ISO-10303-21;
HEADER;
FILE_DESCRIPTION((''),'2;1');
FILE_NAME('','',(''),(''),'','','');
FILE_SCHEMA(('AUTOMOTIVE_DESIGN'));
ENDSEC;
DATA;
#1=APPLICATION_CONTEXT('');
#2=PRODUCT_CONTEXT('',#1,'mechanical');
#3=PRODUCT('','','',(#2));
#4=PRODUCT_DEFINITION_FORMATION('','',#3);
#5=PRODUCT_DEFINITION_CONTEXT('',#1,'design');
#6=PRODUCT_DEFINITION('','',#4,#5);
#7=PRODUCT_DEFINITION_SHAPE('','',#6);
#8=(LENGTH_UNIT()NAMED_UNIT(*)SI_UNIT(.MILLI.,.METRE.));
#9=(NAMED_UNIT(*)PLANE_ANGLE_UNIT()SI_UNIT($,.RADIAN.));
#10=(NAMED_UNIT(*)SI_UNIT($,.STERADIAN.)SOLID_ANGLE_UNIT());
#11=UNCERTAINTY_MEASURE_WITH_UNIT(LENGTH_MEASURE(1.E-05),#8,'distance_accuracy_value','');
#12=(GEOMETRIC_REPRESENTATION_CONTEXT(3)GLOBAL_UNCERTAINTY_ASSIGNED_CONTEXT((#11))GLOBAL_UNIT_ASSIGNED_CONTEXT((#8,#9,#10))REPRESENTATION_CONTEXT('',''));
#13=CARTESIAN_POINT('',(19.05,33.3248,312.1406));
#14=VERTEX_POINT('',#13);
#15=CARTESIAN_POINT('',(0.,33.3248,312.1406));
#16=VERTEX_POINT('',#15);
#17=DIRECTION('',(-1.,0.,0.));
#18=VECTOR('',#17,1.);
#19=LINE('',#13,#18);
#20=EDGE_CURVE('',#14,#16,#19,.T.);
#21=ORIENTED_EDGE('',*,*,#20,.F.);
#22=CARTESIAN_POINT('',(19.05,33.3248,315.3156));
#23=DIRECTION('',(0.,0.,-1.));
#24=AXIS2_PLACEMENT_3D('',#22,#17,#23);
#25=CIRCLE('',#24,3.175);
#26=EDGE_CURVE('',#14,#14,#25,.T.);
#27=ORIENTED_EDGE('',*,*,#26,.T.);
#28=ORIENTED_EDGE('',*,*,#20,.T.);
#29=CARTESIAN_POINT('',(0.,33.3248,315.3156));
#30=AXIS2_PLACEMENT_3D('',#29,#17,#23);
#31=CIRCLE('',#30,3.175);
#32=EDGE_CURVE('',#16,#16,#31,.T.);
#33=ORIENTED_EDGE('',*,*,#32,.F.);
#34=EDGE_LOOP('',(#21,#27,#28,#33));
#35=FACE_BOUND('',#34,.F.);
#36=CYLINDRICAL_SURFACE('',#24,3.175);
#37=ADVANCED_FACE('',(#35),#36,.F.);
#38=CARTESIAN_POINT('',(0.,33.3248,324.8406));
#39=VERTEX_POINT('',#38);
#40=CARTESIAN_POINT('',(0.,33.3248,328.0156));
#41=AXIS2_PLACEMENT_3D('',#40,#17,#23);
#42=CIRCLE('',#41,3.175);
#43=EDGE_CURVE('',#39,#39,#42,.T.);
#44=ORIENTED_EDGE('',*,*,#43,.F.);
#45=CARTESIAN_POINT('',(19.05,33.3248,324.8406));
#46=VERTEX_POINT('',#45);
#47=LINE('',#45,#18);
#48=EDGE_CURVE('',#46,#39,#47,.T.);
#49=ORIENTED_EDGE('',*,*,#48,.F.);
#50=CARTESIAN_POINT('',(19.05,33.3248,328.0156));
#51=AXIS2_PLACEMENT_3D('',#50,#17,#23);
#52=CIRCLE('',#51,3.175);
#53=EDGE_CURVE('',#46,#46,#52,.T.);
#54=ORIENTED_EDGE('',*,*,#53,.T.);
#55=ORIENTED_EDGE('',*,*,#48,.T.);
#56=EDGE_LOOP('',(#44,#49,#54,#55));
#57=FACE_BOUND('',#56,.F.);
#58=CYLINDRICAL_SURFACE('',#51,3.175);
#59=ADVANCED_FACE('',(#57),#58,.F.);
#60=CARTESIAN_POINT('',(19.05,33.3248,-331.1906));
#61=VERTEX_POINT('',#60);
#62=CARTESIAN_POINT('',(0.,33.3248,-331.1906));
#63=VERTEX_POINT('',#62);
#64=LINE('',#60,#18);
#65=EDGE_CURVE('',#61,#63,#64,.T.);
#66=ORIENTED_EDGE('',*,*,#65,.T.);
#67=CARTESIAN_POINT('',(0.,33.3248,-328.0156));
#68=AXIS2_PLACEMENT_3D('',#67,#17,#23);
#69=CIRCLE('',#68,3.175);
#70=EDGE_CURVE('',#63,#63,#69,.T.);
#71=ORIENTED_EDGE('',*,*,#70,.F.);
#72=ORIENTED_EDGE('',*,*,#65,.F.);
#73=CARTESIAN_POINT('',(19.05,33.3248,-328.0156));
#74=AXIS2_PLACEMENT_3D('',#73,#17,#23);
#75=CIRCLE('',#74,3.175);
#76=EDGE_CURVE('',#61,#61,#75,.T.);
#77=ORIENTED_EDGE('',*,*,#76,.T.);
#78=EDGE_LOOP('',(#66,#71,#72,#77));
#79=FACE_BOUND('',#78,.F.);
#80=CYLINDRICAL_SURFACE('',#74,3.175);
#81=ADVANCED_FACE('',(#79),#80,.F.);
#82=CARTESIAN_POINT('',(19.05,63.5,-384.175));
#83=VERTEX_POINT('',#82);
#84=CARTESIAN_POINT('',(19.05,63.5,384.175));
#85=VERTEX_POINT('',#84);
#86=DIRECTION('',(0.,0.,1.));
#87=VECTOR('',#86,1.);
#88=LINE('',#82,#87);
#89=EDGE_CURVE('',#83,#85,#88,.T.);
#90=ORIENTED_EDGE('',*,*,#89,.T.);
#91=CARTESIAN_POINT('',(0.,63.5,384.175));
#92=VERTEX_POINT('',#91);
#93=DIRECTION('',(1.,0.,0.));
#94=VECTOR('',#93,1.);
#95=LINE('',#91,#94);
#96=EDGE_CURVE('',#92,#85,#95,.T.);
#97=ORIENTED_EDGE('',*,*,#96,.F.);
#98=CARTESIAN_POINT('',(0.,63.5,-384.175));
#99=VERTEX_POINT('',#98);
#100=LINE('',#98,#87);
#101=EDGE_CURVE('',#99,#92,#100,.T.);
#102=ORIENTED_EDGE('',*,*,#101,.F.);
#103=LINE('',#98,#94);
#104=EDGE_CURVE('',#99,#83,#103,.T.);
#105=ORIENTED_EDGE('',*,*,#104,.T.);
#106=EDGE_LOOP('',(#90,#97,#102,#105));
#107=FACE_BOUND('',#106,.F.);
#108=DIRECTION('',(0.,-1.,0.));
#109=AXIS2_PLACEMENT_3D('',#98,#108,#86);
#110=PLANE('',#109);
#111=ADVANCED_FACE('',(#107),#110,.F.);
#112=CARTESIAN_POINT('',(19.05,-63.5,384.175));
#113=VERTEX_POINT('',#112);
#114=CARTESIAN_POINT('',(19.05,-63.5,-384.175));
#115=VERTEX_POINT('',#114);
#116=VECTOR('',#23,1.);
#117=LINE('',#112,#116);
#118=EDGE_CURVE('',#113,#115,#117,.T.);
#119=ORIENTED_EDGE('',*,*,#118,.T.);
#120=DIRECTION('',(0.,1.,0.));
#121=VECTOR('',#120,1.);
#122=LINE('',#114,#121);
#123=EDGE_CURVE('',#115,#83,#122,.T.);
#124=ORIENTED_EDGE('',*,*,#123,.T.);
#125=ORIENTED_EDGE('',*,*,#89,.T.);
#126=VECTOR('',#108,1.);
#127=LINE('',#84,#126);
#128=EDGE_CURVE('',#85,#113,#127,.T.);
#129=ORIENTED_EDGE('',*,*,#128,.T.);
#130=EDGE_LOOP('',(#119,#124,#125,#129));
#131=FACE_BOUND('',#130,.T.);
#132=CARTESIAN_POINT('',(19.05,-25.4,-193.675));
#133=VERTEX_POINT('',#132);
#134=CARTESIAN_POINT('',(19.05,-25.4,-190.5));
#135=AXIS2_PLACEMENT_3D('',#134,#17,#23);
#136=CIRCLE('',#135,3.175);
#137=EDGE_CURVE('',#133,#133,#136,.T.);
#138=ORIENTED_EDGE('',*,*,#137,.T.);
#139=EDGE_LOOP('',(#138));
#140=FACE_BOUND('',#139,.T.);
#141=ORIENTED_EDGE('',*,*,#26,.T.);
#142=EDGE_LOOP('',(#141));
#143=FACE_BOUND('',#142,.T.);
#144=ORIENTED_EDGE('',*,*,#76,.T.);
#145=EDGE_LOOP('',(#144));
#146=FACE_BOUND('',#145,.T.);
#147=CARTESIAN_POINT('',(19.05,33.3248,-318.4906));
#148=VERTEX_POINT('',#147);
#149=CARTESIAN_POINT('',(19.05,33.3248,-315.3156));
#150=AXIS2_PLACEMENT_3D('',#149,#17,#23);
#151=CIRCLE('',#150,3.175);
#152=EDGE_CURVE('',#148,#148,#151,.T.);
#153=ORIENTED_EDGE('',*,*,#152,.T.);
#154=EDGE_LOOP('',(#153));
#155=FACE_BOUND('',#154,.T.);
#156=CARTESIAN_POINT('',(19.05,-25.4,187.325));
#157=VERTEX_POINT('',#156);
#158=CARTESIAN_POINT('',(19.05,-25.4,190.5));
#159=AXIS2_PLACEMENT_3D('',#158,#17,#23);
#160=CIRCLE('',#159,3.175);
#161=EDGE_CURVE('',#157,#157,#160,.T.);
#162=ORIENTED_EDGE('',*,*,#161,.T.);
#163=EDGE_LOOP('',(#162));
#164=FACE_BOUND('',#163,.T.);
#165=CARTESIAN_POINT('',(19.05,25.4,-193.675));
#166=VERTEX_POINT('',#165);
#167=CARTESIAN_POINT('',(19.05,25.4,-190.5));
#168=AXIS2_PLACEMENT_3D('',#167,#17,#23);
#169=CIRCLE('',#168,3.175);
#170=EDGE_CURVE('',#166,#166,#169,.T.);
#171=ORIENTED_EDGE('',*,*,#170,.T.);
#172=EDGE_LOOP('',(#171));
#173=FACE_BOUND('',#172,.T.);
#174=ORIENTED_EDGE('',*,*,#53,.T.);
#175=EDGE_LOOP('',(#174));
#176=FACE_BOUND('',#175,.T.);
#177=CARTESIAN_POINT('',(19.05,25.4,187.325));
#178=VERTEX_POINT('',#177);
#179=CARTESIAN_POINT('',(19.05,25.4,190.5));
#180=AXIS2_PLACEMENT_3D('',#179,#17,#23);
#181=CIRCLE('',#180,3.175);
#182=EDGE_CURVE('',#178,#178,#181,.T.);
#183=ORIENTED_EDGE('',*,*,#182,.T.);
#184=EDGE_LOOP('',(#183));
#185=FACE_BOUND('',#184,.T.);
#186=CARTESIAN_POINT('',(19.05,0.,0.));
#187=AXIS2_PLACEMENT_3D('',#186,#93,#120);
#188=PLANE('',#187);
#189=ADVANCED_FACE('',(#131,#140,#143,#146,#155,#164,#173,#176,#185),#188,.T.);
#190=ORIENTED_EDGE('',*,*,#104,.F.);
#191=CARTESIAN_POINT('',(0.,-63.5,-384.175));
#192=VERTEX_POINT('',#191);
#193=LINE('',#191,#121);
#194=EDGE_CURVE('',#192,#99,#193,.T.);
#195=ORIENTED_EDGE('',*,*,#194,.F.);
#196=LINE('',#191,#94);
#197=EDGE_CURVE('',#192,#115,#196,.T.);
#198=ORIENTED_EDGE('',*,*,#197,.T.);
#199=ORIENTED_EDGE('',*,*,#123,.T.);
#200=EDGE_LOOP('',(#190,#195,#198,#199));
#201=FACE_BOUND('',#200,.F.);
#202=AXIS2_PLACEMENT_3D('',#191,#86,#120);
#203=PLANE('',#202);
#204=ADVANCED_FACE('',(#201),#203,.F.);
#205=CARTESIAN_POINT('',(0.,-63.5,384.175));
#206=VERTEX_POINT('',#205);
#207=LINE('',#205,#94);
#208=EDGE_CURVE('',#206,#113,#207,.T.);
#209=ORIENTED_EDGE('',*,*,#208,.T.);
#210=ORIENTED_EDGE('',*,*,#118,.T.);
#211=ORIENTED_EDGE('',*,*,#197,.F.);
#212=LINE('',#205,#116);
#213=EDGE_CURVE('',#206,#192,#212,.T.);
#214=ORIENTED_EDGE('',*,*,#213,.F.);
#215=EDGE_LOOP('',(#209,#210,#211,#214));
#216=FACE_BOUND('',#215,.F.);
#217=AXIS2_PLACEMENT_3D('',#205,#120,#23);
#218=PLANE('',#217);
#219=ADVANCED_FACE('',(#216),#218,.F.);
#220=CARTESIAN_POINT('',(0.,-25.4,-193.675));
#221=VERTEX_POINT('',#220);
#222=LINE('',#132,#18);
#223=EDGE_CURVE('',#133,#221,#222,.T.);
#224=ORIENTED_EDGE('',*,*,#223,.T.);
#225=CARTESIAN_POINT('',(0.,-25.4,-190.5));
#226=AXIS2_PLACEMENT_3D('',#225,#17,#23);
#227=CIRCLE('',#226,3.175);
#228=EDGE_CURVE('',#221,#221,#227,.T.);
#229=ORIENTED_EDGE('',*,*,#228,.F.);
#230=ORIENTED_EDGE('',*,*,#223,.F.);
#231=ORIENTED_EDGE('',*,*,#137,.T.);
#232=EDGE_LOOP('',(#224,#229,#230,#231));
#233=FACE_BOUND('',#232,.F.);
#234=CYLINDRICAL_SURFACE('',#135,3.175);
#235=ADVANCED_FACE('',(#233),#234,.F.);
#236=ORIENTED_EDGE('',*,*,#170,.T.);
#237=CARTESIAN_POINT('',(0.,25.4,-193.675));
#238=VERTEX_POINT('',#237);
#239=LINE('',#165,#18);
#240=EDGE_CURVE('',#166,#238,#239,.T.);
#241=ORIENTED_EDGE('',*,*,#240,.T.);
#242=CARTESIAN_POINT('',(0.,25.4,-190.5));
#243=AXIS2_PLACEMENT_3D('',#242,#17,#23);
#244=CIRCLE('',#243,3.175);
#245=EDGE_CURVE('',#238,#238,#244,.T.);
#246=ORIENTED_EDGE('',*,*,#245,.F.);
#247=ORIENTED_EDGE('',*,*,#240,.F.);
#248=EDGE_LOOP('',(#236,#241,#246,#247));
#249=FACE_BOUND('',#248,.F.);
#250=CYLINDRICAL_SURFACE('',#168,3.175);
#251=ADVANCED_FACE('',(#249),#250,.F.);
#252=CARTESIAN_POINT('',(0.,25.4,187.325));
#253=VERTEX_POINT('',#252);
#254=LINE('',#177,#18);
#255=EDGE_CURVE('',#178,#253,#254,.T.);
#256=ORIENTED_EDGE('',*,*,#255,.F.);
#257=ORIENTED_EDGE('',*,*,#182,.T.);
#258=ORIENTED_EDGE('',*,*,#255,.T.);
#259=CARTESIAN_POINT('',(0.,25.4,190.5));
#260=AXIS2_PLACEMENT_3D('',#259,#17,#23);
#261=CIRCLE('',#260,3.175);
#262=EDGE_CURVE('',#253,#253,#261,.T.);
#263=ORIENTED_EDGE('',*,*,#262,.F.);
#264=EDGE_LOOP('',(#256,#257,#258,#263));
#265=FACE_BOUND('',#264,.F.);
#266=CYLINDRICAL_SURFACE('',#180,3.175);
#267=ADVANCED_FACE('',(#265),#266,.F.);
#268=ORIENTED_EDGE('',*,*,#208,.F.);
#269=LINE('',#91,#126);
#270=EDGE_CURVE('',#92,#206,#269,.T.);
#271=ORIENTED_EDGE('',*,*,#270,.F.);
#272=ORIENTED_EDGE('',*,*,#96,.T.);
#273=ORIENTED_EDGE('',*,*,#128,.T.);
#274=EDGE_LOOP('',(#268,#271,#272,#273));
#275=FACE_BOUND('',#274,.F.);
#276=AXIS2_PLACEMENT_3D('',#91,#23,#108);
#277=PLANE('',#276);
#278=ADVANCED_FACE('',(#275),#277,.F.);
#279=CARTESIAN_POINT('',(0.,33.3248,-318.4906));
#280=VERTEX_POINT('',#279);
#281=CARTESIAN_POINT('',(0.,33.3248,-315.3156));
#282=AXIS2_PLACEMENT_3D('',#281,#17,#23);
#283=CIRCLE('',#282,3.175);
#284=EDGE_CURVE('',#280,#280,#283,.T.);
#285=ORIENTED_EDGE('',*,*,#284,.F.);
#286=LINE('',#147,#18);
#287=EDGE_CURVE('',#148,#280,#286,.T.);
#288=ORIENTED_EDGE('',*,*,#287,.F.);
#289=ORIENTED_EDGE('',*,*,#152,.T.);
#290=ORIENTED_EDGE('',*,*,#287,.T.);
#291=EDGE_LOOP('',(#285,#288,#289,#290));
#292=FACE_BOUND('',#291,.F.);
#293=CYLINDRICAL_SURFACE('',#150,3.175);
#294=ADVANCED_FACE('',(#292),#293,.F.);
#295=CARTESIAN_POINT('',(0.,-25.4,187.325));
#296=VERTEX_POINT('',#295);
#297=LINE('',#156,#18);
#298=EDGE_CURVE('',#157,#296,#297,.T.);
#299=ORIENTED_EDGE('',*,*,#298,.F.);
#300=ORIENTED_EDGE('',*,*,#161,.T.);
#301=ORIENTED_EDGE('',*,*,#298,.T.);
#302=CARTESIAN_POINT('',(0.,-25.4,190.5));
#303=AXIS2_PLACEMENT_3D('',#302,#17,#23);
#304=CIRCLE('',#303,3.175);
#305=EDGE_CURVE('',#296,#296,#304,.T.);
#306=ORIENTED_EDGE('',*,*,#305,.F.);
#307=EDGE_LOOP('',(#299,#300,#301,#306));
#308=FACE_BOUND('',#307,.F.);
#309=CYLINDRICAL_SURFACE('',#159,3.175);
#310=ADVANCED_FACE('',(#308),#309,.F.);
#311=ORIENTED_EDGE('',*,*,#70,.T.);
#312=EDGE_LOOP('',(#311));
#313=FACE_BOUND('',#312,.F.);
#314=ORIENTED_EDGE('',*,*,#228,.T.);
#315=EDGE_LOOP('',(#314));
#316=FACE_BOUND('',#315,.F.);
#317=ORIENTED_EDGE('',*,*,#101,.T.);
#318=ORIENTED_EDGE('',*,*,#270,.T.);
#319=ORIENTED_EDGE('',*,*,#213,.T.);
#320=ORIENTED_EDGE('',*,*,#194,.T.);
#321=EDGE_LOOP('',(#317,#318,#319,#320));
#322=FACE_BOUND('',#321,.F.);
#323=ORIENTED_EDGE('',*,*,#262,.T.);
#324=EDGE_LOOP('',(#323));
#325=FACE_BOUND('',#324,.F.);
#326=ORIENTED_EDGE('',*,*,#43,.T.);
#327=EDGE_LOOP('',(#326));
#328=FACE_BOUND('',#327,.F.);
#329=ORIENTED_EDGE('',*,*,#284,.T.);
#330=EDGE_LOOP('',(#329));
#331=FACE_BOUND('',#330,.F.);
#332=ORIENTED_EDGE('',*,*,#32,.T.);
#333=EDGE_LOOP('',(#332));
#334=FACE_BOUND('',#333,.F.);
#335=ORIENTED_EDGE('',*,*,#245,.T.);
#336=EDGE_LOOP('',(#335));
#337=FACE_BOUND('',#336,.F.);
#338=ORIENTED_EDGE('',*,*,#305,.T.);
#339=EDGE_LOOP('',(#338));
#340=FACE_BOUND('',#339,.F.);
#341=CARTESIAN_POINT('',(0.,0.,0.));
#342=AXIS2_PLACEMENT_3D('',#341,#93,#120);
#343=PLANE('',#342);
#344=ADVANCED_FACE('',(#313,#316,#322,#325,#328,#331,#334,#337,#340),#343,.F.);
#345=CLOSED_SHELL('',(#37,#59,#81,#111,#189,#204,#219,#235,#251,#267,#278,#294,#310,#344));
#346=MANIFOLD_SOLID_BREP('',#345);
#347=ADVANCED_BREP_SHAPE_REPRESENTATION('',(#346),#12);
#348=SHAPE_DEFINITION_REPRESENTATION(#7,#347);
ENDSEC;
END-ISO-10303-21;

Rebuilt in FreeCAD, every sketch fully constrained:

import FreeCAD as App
import Part
import Sketcher
Q = App.Units.Quantity


def add_polygon(sketch, points):
    """Adds a closed chain of lines whose ends are joined by coincident constraints."""
    first, n = sketch.GeometryCount, len(points)
    for a, b in zip(points, points[1:] + points[:1]):
        sketch.addGeometry(Part.LineSegment(App.Vector(*a, 0), App.Vector(*b, 0)), False)
    for i in range(n):
        sketch.addConstraint(Sketcher.Constraint("Coincident", first + i, 2, first + (i + 1) % n, 1))

doc = App.newDocument("Part")
params = doc.addObject("Spreadsheet::Sheet", "Params")
for row, (alias, value) in enumerate([
    ("sketch1_width", "5 in"),
    ("sketch1_height", "30.25 in"),
    ("pad1_length", "0.75 in"),
    ("sketch2_diameter", "0.25 in"),
    ("hole_diameter", "0.25 in"),
], start=1):
    params.set(f"A{row}", alias)
    params.set(f"B{row}", "=" + value)
    params.setAlias(f"B{row}", alias)

body = doc.addObject("PartDesign::Body", "Body")

# Sketch on YZ plane
sketch1 = body.newObject("Sketcher::SketchObject", "Sketch")
sketch1.AttachmentSupport = (doc.getObject("YZ_Plane"), [""])
sketch1.MapMode = "FlatFace"
add_polygon(sketch1, [(-64, 384), (-64, -384), (64, -384), (64, 384)])  # lines 0-3
sketch1.addConstraint([
    Sketcher.Constraint("Vertical", 0),
    Sketcher.Constraint("Horizontal", 1),
    Sketcher.Constraint("Vertical", 2),
    Sketcher.Constraint("Horizontal", 3),
    Sketcher.Constraint("Symmetric", 0, 2, 2, 2, -1, 1),
    Sketcher.Constraint("DistanceX", 1, 1, 1, 2, Q("5 in")),
    Sketcher.Constraint("DistanceY", 0, 2, 0, 1, Q("30.25 in")),
])
sketch1.setExpression("Constraints[9]", "Params.sketch1_width")
sketch1.setExpression("Constraints[10]", "Params.sketch1_height")
pad1 = body.newObject("PartDesign::Pad", "Pad")
pad1.Profile = sketch1
pad1.setExpression("Length", "Params.pad1_length")

# Sketch on YZ plane
sketch2 = body.newObject("Sketcher::SketchObject", "Sketch001")
sketch2.AttachmentSupport = (doc.getObject("YZ_Plane"), [""])
sketch2.MapMode = "FlatFace"
sketch2.AttachmentOffset = App.Placement(App.Vector(0, 0, 0.75 * 25.4), App.Rotation())
sketch2.addGeometry([
    Part.Circle(App.Vector(33.3, 328, 0), App.Vector(0, 0, 1), 3.2),  # 0
    Part.Circle(App.Vector(33.3, 315.3, 0), App.Vector(0, 0, 1), 3.2),  # 1
    Part.Circle(App.Vector(33.3, -315.3, 0), App.Vector(0, 0, 1), 3.2),  # 2
    Part.Circle(App.Vector(33.3, -328, 0), App.Vector(0, 0, 1), 3.2),  # 3
    Part.Circle(App.Vector(25.4, 190.5, 0), App.Vector(0, 0, 1), 3.2),  # 4
    Part.Circle(App.Vector(-25.4, 190.5, 0), App.Vector(0, 0, 1), 3.2),  # 5
    Part.Circle(App.Vector(25.4, -190.5, 0), App.Vector(0, 0, 1), 3.2),  # 6
    Part.Circle(App.Vector(-25.4, -190.5, 0), App.Vector(0, 0, 1), 3.2),  # 7
], False)
sketch2.addConstraint([
    Sketcher.Constraint("Equal", 0, 1),
    Sketcher.Constraint("Equal", 1, 2),
    Sketcher.Constraint("Equal", 2, 3),
    Sketcher.Constraint("Equal", 3, 4),
    Sketcher.Constraint("Equal", 4, 5),
    Sketcher.Constraint("Equal", 5, 6),
    Sketcher.Constraint("Equal", 6, 7),
    Sketcher.Constraint("Symmetric", 5, 3, 6, 3, -1, 1),
    Sketcher.Constraint("Symmetric", 4, 3, 7, 3, -1, 1),
    Sketcher.Constraint("Symmetric", 4, 3, 5, 3, -2),
    Sketcher.Constraint("Symmetric", 1, 3, 2, 3, -1),
    Sketcher.Constraint("Symmetric", 0, 3, 3, 3, -1),
    Sketcher.Constraint("Vertical", 0, 3, 1, 3),
    Sketcher.Constraint("Diameter", 0, Q("0.25 in")),
    Sketcher.Constraint("DistanceX", -1, 1, 4, 3, Q("1 in")),
    Sketcher.Constraint("DistanceY", 6, 3, 4, 3, Q("15 in")),
    Sketcher.Constraint("DistanceY", 1, 3, 0, 3, Q("0.5 in")),
    Sketcher.Constraint("DistanceX", -1, 1, 0, 3, Q("1.312 in")),
    Sketcher.Constraint("DistanceY", -1, 1, 0, 3, Q("12.914 in")),
])
sketch2.setExpression("Constraints[13]", "Params.sketch2_diameter")
doc.recompute()
hole = body.newObject("PartDesign::Hole", "Hole")
hole.Profile = sketch2
hole.ThreadType = "None"
hole.setExpression("Diameter", "Params.hole_diameter")
hole.DepthType = "ThroughAll"

doc.recompute()
